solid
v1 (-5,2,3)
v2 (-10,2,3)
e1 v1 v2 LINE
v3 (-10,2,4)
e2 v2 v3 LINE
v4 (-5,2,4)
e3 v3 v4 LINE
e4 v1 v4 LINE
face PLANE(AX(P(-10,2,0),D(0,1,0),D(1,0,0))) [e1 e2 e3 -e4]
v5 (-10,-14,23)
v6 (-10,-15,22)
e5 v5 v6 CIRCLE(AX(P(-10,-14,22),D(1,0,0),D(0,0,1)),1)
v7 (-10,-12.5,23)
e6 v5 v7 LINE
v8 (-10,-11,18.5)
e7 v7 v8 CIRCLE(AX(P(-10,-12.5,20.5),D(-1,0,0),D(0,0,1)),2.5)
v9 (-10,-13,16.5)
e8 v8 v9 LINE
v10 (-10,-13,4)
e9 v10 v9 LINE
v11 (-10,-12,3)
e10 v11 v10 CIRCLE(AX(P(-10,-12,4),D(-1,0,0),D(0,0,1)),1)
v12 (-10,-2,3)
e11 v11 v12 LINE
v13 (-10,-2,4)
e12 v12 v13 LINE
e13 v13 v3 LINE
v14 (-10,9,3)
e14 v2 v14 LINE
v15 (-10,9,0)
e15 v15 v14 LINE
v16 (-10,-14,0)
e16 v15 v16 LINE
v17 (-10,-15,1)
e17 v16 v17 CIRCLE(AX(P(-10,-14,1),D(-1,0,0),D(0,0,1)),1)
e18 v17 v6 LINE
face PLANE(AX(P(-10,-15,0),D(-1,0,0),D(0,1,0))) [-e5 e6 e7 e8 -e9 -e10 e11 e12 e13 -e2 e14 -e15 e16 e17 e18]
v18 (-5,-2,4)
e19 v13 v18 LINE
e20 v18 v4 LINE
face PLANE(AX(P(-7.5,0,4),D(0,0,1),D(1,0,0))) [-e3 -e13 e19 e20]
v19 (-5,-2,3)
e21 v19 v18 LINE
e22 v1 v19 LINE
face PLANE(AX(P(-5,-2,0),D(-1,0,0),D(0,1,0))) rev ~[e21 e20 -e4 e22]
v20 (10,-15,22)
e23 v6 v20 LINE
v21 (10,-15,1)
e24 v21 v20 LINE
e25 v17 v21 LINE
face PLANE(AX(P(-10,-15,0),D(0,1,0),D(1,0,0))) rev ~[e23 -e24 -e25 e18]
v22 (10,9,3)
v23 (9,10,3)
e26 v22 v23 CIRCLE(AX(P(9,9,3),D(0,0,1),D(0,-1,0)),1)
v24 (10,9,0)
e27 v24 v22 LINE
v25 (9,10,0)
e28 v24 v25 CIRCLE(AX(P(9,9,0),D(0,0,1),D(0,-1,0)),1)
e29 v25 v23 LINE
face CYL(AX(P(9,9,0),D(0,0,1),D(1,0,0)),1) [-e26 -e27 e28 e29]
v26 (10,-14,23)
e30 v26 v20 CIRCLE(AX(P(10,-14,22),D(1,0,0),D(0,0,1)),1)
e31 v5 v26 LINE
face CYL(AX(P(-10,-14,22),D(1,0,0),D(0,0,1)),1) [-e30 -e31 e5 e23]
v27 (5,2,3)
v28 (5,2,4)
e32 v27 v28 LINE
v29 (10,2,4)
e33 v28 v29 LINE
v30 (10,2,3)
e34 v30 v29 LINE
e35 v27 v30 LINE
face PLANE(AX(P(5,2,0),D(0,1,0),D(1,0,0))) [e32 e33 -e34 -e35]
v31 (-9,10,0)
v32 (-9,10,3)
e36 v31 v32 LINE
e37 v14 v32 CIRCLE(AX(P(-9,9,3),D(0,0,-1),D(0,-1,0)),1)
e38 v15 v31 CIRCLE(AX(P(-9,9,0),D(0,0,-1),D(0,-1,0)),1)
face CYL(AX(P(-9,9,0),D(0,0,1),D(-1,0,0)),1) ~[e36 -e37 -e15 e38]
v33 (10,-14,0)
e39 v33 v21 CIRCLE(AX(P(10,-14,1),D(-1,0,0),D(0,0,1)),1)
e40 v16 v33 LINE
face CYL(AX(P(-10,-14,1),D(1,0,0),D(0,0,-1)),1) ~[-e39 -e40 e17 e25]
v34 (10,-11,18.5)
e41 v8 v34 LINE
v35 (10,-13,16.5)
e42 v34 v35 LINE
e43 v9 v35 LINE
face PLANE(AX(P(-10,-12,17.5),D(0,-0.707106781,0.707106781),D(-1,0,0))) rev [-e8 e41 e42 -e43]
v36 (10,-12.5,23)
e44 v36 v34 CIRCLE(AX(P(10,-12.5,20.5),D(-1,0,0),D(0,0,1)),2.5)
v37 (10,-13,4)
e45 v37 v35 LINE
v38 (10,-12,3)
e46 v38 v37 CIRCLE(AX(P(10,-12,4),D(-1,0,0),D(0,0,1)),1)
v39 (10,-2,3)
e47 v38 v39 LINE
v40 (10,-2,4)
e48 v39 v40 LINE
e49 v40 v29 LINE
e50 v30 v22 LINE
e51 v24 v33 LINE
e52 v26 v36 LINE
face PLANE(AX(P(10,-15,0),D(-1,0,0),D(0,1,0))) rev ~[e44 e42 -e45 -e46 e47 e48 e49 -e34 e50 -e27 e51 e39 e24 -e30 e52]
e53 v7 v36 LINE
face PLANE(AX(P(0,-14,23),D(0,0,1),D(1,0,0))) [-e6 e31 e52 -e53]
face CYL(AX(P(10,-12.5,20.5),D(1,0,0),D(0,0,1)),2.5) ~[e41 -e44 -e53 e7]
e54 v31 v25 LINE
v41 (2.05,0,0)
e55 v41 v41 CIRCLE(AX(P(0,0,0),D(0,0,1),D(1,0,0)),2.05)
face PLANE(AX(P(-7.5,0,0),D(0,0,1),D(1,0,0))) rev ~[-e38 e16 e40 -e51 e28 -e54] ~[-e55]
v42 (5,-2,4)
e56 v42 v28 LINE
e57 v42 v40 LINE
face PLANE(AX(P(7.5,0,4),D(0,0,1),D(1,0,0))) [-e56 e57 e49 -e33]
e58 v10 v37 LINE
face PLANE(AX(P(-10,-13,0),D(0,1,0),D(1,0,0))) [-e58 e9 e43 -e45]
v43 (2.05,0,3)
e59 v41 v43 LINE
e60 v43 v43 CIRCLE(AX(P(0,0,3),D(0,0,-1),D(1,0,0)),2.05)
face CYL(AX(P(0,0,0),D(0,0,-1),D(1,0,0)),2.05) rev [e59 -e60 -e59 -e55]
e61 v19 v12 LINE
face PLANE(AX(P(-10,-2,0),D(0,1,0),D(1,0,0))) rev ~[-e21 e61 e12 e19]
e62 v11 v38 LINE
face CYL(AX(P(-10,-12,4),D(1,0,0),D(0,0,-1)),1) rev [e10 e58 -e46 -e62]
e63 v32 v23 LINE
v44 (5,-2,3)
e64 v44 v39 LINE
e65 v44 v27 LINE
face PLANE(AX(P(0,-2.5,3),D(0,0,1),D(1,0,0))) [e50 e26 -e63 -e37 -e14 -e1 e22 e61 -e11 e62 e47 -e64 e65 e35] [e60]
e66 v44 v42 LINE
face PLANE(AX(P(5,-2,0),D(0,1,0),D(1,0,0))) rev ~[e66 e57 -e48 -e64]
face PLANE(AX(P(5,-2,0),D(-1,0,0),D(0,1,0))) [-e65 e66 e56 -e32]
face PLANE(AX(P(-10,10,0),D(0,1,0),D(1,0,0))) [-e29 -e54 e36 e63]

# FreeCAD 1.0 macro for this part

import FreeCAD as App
import Part
import Sketcher
Q = App.Units.Quantity


def edges_at(feature, points):
    """Names of the edges that pass closest to the given points."""
    edges = feature.Shape.Edges
    near = lambda p: min(range(len(edges)), key=lambda i: edges[i].distToShape(Part.Vertex(*p))[0])
    return sorted({f"Edge{near(p) + 1}" for p in points})

doc = App.newDocument("Part")
body = doc.addObject("PartDesign::Body", "Body")

# Sketch on XY plane
sketch1 = doc.addObject("Sketcher::SketchObject", "Sketch")
body.addObject(sketch1)
sketch1.AttachmentSupport = (doc.XY_Plane, [""])
sketch1.MapMode = "FlatFace"
sketch1.addGeometry(Part.Circle(App.Vector(0, 0, 0), App.Vector(0, 0, 1), 2.05), False)
sketch1.addConstraint([
    Sketcher.Constraint("Coincident", 0, 3, -1, 1),
    Sketcher.Constraint("Diameter", 0, Q("4.1 mm")),
])
pad1 = doc.addObject("PartDesign::Pad", "Pad")
body.addObject(pad1)
pad1.Profile = sketch1
pad1.Length = 10
body2 = doc.addObject("PartDesign::Body", "Body001")

# Sketch on XY plane
sketch2 = doc.addObject("Sketcher::SketchObject", "Sketch001")
body2.addObject(sketch2)
sketch2.AttachmentSupport = (doc.getObject("XY_Plane001"), [""])
sketch2.MapMode = "FlatFace"
sketch2.addGeometry([
    Part.LineSegment(App.Vector(-10, -13, 0), App.Vector(-10, -15, 0)),
    Part.LineSegment(App.Vector(-10, -15, 0), App.Vector(10, -15, 0)),
    Part.LineSegment(App.Vector(10, -15, 0), App.Vector(10, -13, 0)),
    Part.LineSegment(App.Vector(10, -13, 0), App.Vector(-10, -13, 0)),
], False)
sketch2.addConstraint([
    Sketcher.Constraint("Coincident", 0, 2, 1, 1),
    Sketcher.Constraint("Coincident", 1, 2, 2, 1),
    Sketcher.Constraint("Coincident", 2, 2, 3, 1),
    Sketcher.Constraint("Coincident", 3, 2, 0, 1),
    Sketcher.Constraint("Vertical", 0),
    Sketcher.Constraint("Horizontal", 1),
    Sketcher.Constraint("Vertical", 2),
    Sketcher.Constraint("Horizontal", 3),
    Sketcher.Constraint("DistanceX", 1, 1, 1, 2, Q("20 mm")),
    Sketcher.Constraint("DistanceY", 0, 2, 0, 1, Q("2 mm")),
    Sketcher.Constraint("DistanceX", 0, 2, -1, 1, Q("10 mm")),
    Sketcher.Constraint("DistanceY", 0, 2, -1, 1, Q("15 mm")),
])
pad2 = doc.addObject("PartDesign::Pad", "Pad001")
body2.addObject(pad2)
pad2.Profile = sketch2
pad2.Length = 23
body3 = doc.addObject("PartDesign::Body", "Body002")

# Sketch on XY plane
sketch3 = doc.addObject("Sketcher::SketchObject", "Sketch002")
body3.addObject(sketch3)
sketch3.AttachmentSupport = (doc.getObject("XY_Plane002"), [""])
sketch3.MapMode = "FlatFace"
sketch3.addGeometry([
    Part.LineSegment(App.Vector(-10, 10, 0), App.Vector(-10, -15, 0)),
    Part.LineSegment(App.Vector(-10, -15, 0), App.Vector(10, -15, 0)),
    Part.LineSegment(App.Vector(10, -15, 0), App.Vector(10, 10, 0)),
    Part.LineSegment(App.Vector(10, 10, 0), App.Vector(-10, 10, 0)),
], False)
sketch3.addConstraint([
    Sketcher.Constraint("Coincident", 0, 2, 1, 1),
    Sketcher.Constraint("Coincident", 1, 2, 2, 1),
    Sketcher.Constraint("Coincident", 2, 2, 3, 1),
    Sketcher.Constraint("Coincident", 3, 2, 0, 1),
    Sketcher.Constraint("Vertical", 0),
    Sketcher.Constraint("Horizontal", 1),
    Sketcher.Constraint("Vertical", 2),
    Sketcher.Constraint("Horizontal", 3),
    Sketcher.Constraint("DistanceX", 1, 1, 1, 2, Q("20 mm")),
    Sketcher.Constraint("DistanceY", 0, 2, 0, 1, Q("25 mm")),
    Sketcher.Constraint("DistanceX", 0, 2, -1, 1, Q("10 mm")),
    Sketcher.Constraint("DistanceY", 0, 2, -1, 1, Q("15 mm")),
])
pad3 = doc.addObject("PartDesign::Pad", "Pad002")
body3.addObject(pad3)
pad3.Profile = sketch3
pad3.Length = 3
body4 = doc.addObject("PartDesign::Body", "Body003")

# Sketch on XY plane
sketch4 = doc.addObject("Sketcher::SketchObject", "Sketch003")
body4.addObject(sketch4)
sketch4.AttachmentSupport = (doc.getObject("XY_Plane003"), [""])
sketch4.MapMode = "FlatFace"
sketch4.AttachmentOffset = App.Placement(App.Vector(0, 0, 20.5), App.Rotation())
sketch4.addGeometry([
    Part.LineSegment(App.Vector(-10, -12.5, 0), App.Vector(-10, -15, 0)),
    Part.LineSegment(App.Vector(-10, -15, 0), App.Vector(10, -15, 0)),
    Part.LineSegment(App.Vector(10, -15, 0), App.Vector(10, -12.5, 0)),
    Part.LineSegment(App.Vector(10, -12.5, 0), App.Vector(-10, -12.5, 0)),
], False)
sketch4.addConstraint([
    Sketcher.Constraint("Coincident", 0, 2, 1, 1),
    Sketcher.Constraint("Coincident", 1, 2, 2, 1),
    Sketcher.Constraint("Coincident", 2, 2, 3, 1),
    Sketcher.Constraint("Coincident", 3, 2, 0, 1),
    Sketcher.Constraint("Vertical", 0),
    Sketcher.Constraint("Horizontal", 1),
    Sketcher.Constraint("Vertical", 2),
    Sketcher.Constraint("Horizontal", 3),
    Sketcher.Constraint("DistanceX", 1, 1, 1, 2, Q("20 mm")),
    Sketcher.Constraint("DistanceY", 0, 2, 0, 1, Q("2.5 mm")),
    Sketcher.Constraint("DistanceX", 0, 2, -1, 1, Q("10 mm")),
    Sketcher.Constraint("DistanceY", 0, 2, -1, 1, Q("15 mm")),
])
pad4 = doc.addObject("PartDesign::Pad", "Pad003")
body4.addObject(pad4)
pad4.Profile = sketch4
pad4.Length = 2.5
body5 = doc.addObject("PartDesign::Body", "Body004")

# Sketch on YZ plane
sketch5 = doc.addObject("Sketcher::SketchObject", "Sketch004")
body5.addObject(sketch5)
sketch5.AttachmentSupport = (doc.getObject("YZ_Plane004"), [""])
sketch5.MapMode = "FlatFace"
sketch5.AttachmentOffset = App.Placement(App.Vector(0, 0, 10), App.Rotation())
sketch5.addGeometry(Part.Circle(App.Vector(-12.5, 20.5, 0), App.Vector(0, 0, 1), 2.5), False)
sketch5.addConstraint([
    Sketcher.Constraint("Diameter", 0, Q("5 mm")),
    Sketcher.Constraint("DistanceX", 0, 3, -1, 1, Q("12.5 mm")),
    Sketcher.Constraint("DistanceY", -1, 1, 0, 3, Q("20.5 mm")),
])
pad5 = doc.addObject("PartDesign::Pad", "Pad004")
body5.addObject(pad5)
pad5.Profile = sketch5
pad5.Length = 20
pad5.Reversed = True
body6 = doc.addObject("PartDesign::Body", "Body005")

# Sketch on XY plane
sketch6 = doc.addObject("Sketcher::SketchObject", "Sketch005")
body6.addObject(sketch6)
sketch6.AttachmentSupport = (doc.getObject("XY_Plane005"), [""])
sketch6.MapMode = "FlatFace"
sketch6.addGeometry([
    Part.LineSegment(App.Vector(-10, 2, 0), App.Vector(-10, -2, 0)),
    Part.LineSegment(App.Vector(-10, -2, 0), App.Vector(-5, -2, 0)),
    Part.LineSegment(App.Vector(-5, -2, 0), App.Vector(-5, 2, 0)),
    Part.LineSegment(App.Vector(-5, 2, 0), App.Vector(-10, 2, 0)),
], False)
sketch6.addConstraint([
    Sketcher.Constraint("Coincident", 0, 2, 1, 1),
    Sketcher.Constraint("Coincident", 1, 2, 2, 1),
    Sketcher.Constraint("Coincident", 2, 2, 3, 1),
    Sketcher.Constraint("Coincident", 3, 2, 0, 1),
    Sketcher.Constraint("Vertical", 0),
    Sketcher.Constraint("Horizontal", 1),
    Sketcher.Constraint("Vertical", 2),
    Sketcher.Constraint("Horizontal", 3),
    Sketcher.Constraint("DistanceX", 1, 1, 1, 2, Q("5 mm")),
    Sketcher.Constraint("DistanceY", 0, 2, 0, 1, Q("4 mm")),
    Sketcher.Constraint("DistanceX", 0, 2, -1, 1, Q("10 mm")),
    Sketcher.Constraint("DistanceY", 0, 2, -1, 1, Q("2 mm")),
])
pad6 = doc.addObject("PartDesign::Pad", "Pad005")
body6.addObject(pad6)
pad6.Profile = sketch6
pad6.Length = 4
body7 = doc.addObject("PartDesign::Body", "Body006")
body7.AllowCompound = True

# Sketch on XY plane
sketch7 = doc.addObject("Sketcher::SketchObject", "Sketch006")
body7.addObject(sketch7)
sketch7.AttachmentSupport = (doc.getObject("XY_Plane006"), [""])
sketch7.MapMode = "FlatFace"
sketch7.addGeometry([
    Part.LineSegment(App.Vector(5, 2, 0), App.Vector(5, -2, 0)),
    Part.LineSegment(App.Vector(5, -2, 0), App.Vector(10, -2, 0)),
    Part.LineSegment(App.Vector(10, -2, 0), App.Vector(10, 2, 0)),
    Part.LineSegment(App.Vector(10, 2, 0), App.Vector(5, 2, 0)),
], False)
sketch7.addConstraint([
    Sketcher.Constraint("Coincident", 0, 2, 1, 1),
    Sketcher.Constraint("Coincident", 1, 2, 2, 1),
    Sketcher.Constraint("Coincident", 2, 2, 3, 1),
    Sketcher.Constraint("Coincident", 3, 2, 0, 1),
    Sketcher.Constraint("Vertical", 0),
    Sketcher.Constraint("Horizontal", 1),
    Sketcher.Constraint("Vertical", 2),
    Sketcher.Constraint("Horizontal", 3),
    Sketcher.Constraint("DistanceX", 1, 1, 1, 2, Q("5 mm")),
    Sketcher.Constraint("DistanceY", 0, 2, 0, 1, Q("4 mm")),
    Sketcher.Constraint("DistanceX", -1, 1, 0, 2, Q("5 mm")),
    Sketcher.Constraint("DistanceY", 0, 2, -1, 1, Q("2 mm")),
])
pad7 = doc.addObject("PartDesign::Pad", "Pad006")
body7.addObject(pad7)
pad7.Profile = sketch7
pad7.Length = 4
doc.recompute()

boolean = doc.addObject("PartDesign::Boolean", "Boolean")
body7.addObject(boolean)
boolean.Type = "Fuse"
boolean.addObjects([body2])
doc.recompute()

boolean2 = doc.addObject("PartDesign::Boolean", "Boolean001")
body7.addObject(boolean2)
boolean2.Type = "Fuse"
boolean2.addObjects([body3])
doc.recompute()

boolean3 = doc.addObject("PartDesign::Boolean", "Boolean002")
body7.addObject(boolean3)
boolean3.Type = "Fuse"
boolean3.addObjects([body4])
doc.recompute()

boolean4 = doc.addObject("PartDesign::Boolean", "Boolean003")
body7.addObject(boolean4)
boolean4.Type = "Fuse"
boolean4.addObjects([body5])
doc.recompute()

boolean5 = doc.addObject("PartDesign::Boolean", "Boolean004")
body7.addObject(boolean5)
boolean5.Type = "Fuse"
boolean5.addObjects([body6])
doc.recompute()

fillet = doc.addObject("PartDesign::Fillet", "Fillet")
body7.addObject(fillet)
fillet.Base = (boolean5, edges_at(boolean5, [
    (-10, 10, 1.5),
    (10, 10, 1.5),
    (0, -15, 0),
    (0, -13, 3),
    (0, -15, 23),
]))
fillet.Radius = 1
doc.recompute()

boolean6 = doc.addObject("PartDesign::Boolean", "Boolean005")
body7.addObject(boolean6)
boolean6.Type = "Cut"
boolean6.addObjects([body])
body8 = doc.addObject("PartDesign::Body", "Body007")

# Sketch on XY plane
sketch8 = doc.addObject("Sketcher::SketchObject", "Sketch007")
body8.addObject(sketch8)
sketch8.AttachmentSupport = (doc.getObject("XY_Plane007"), [""])
sketch8.MapMode = "FlatFace"
sketch8.AttachmentOffset = App.Placement(App.Vector(0, 0, 17), App.Rotation())
sketch8.addGeometry([
    Part.LineSegment(App.Vector(-10, -11, 0), App.Vector(-10, -15, 0)),
    Part.LineSegment(App.Vector(-10, -15, 0), App.Vector(10, -15, 0)),
    Part.LineSegment(App.Vector(10, -15, 0), App.Vector(10, -11, 0)),
    Part.LineSegment(App.Vector(10, -11, 0), App.Vector(-10, -11, 0)),
], False)
sketch8.addConstraint([
    Sketcher.Constraint("Coincident", 0, 2, 1, 1),
    Sketcher.Constraint("Coincident", 1, 2, 2, 1),
    Sketcher.Constraint("Coincident", 2, 2, 3, 1),
    Sketcher.Constraint("Coincident", 3, 2, 0, 1),
    Sketcher.Constraint("Vertical", 0),
    Sketcher.Constraint("Horizontal", 1),
    Sketcher.Constraint("Vertical", 2),
    Sketcher.Constraint("Horizontal", 3),
    Sketcher.Constraint("DistanceX", 1, 1, 1, 2, Q("20 mm")),
    Sketcher.Constraint("DistanceY", 0, 2, 0, 1, Q("4 mm")),
    Sketcher.Constraint("DistanceX", 0, 2, -1, 1, Q("10 mm")),
    Sketcher.Constraint("DistanceY", 0, 2, -1, 1, Q("15 mm")),
])
pad8 = doc.addObject("PartDesign::Pad", "Pad007")
body8.addObject(pad8)
pad8.Profile = sketch8
pad8.Length = 3
doc.recompute()

chamfer = doc.addObject("PartDesign::Chamfer", "Chamfer")
body8.addObject(chamfer)
chamfer.Base = (pad8, edges_at(pad8, [(0, -11, 17)]))
chamfer.Size = 2
body9 = doc.addObject("PartDesign::Body", "Body008")
doc.recompute()

body8.Placement = App.Placement(App.Vector(0, 0, -0.5), App.Rotation(App.Vector(0, 0, 1), 0))
boolean7 = doc.addObject("PartDesign::Boolean", "Boolean006")
body9.addObject(boolean7)
boolean7.Type = "Fuse"
boolean7.addObjects([body8])
doc.recompute()

boolean8 = doc.addObject("PartDesign::Boolean", "Boolean007")
body9.addObject(boolean8)
boolean8.Type = "Fuse"
boolean8.addObjects([body7])

doc.recompute()
